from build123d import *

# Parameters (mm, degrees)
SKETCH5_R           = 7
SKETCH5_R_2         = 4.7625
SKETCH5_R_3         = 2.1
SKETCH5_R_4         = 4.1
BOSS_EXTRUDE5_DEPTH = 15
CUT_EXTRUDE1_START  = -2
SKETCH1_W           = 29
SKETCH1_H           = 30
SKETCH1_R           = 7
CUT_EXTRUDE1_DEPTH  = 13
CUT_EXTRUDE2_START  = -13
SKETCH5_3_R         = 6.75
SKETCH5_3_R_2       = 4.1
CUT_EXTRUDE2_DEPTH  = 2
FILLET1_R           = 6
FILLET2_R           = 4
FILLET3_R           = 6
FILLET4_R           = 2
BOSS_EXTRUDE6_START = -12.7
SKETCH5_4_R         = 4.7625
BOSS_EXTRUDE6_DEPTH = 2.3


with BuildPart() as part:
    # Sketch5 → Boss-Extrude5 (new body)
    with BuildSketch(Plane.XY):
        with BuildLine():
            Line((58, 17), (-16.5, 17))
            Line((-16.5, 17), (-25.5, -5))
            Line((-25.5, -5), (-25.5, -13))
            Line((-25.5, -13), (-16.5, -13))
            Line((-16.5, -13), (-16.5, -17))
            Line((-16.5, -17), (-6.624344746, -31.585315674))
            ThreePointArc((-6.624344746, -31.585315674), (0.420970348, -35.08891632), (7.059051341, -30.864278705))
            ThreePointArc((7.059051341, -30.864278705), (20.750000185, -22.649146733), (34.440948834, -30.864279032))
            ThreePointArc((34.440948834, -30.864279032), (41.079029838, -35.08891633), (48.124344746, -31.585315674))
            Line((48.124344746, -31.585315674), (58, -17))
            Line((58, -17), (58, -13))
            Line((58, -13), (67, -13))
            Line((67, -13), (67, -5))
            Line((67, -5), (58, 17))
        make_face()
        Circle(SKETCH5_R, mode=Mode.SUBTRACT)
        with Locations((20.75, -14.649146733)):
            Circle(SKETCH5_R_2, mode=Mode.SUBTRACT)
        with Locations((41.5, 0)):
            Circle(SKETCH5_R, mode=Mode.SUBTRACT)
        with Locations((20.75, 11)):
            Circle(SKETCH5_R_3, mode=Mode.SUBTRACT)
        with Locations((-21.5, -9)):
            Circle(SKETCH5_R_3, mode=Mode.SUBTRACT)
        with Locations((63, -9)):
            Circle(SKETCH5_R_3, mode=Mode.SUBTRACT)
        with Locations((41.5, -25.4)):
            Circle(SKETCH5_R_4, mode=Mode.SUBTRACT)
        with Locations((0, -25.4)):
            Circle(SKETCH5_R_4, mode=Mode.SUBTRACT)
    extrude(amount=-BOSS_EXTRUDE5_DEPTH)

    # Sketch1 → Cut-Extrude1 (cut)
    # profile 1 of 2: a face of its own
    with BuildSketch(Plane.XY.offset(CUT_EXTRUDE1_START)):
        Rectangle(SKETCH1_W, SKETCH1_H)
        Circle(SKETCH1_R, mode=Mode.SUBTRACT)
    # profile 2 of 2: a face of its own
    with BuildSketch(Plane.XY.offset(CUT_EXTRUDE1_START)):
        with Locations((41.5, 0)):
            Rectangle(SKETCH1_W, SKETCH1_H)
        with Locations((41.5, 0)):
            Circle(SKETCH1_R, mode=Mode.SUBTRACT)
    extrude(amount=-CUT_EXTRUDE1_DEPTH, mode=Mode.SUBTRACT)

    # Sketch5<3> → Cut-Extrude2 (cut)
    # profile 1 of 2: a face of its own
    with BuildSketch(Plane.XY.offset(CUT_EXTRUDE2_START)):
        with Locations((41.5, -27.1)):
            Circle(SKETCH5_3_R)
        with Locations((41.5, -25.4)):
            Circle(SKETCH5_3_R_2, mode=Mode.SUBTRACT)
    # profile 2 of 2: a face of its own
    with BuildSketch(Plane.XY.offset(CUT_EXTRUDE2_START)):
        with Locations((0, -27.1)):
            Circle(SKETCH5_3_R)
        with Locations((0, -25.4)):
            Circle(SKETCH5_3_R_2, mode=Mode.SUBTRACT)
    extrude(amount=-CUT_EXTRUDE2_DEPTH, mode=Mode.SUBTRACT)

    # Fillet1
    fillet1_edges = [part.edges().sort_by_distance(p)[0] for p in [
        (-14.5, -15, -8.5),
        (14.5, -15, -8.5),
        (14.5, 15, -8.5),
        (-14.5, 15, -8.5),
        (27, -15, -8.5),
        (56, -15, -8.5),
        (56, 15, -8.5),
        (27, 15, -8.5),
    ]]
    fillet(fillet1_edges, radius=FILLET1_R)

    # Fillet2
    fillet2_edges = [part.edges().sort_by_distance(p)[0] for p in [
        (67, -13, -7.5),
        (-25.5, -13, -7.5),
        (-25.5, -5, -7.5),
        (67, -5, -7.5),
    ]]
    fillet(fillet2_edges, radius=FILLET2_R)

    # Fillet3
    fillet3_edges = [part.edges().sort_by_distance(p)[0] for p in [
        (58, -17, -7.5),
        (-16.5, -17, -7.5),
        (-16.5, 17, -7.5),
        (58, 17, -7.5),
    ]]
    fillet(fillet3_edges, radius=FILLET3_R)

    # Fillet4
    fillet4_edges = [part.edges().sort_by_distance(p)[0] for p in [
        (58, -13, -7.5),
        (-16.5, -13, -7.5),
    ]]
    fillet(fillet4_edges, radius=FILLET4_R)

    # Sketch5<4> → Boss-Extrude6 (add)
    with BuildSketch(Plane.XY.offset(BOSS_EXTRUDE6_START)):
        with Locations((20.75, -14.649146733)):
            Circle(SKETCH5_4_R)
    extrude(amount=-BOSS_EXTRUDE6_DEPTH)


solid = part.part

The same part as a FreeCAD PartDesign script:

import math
import FreeCAD as App
import Part
import Sketcher
from FreeCAD import Vector


def edges_at(feature, points):
    """Names of the edges that pass closest to the given points."""
    edges = feature.Shape.Edges
    near = lambda p: min(range(len(edges)), key=lambda i: edges[i].distToShape(Part.Vertex(*p))[0])
    return sorted({f"Edge{near(p) + 1}" for p in points})

doc = App.newDocument("Part")
params = doc.addObject("Spreadsheet::Sheet", "Params")
for row, (alias, value) in enumerate([
    ("sketch1_diameter", "14 mm"),
    ("sketch1_radius", "8 mm"),
    ("sketch1_diameter2", "8.2 mm"),
    ("sketch1_diameter3", "4.2 mm"),
    ("sketch1_width", "9 mm"),
    ("pad1_length", "15 mm"),
    ("sketch2_diameter", "14 mm"),
    ("sketch2_width", "29 mm"),
    ("sketch2_height", "30 mm"),
    ("pocket1_length", "13 mm"),
    ("sketch3_diameter", "13.5 mm"),
    ("sketch3_diameter2", "8.2 mm"),
    ("pocket2_length", "2 mm"),
    ("fillet_radius", "6 mm"),
    ("fillet2_radius", "4 mm"),
    ("fillet3_radius", "6 mm"),
    ("fillet4_radius", "2 mm"),
    ("pad2_length", "2.3 mm"),
], start=1):
    params.set(f"A{row}", alias)
    params.set(f"B{row}", "=" + value)
    params.setAlias(f"B{row}", alias)

body = doc.addObject("PartDesign::Body", "Body")

# Sketch on XY plane
sketch1 = body.newObject("Sketcher::SketchObject", "Sketch")
sketch1.AttachmentSupport = (doc.getObject("XY_Plane"), [""])
sketch1.MapMode = "FlatFace"
sketch1.addGeometry([
    Part.LineSegment(Vector(58, 17, 0), Vector(-16.5, 17, 0)),  # 0
    Part.LineSegment(Vector(-16.5, 17, 0), Vector(-25.5, -5, 0)),  # 1
    Part.LineSegment(Vector(-25.5, -5, 0), Vector(-25.5, -13, 0)),  # 2
    Part.LineSegment(Vector(-25.5, -13, 0), Vector(-16.5, -13, 0)),  # 3
    Part.LineSegment(Vector(-16.5, -13, 0), Vector(-16.5, -17, 0)),  # 4
    Part.LineSegment(Vector(-16.5, -17, 0), Vector(-6.6, -31.6, 0)),  # 5
    Part.ArcOfCircle(Part.Circle(Vector(0, -27.1, 0), Vector(0, 0, 1), 8), math.radians(-146), math.radians(-28)),  # 6
    Part.ArcOfCircle(Part.Circle(Vector(20.8, -38.2, 0), Vector(0, 0, 1), 15.5), math.radians(28), math.radians(152)),  # 7
    Part.ArcOfCircle(Part.Circle(Vector(41.5, -27.1, 0), Vector(0, 0, 1), 8), math.radians(-152), math.radians(-34)),  # 8
    Part.LineSegment(Vector(48.1, -31.6, 0), Vector(58, -17, 0)),  # 9
    Part.LineSegment(Vector(58, -17, 0), Vector(58, -13, 0)),  # 10
    Part.LineSegment(Vector(58, -13, 0), Vector(67, -13, 0)),  # 11
    Part.LineSegment(Vector(67, -13, 0), Vector(67, -5, 0)),  # 12
    Part.LineSegment(Vector(67, -5, 0), Vector(58, 17, 0)),  # 13
    Part.Circle(Vector(0, -25.4, 0), Vector(0, 0, 1), 4.1),  # 14
    Part.Circle(Vector(-21.5, -9, 0), Vector(0, 0, 1), 2.1),  # 15
    Part.Circle(Vector(41.5, -25.4, 0), Vector(0, 0, 1), 4.1),  # 16
    Part.Circle(Vector(20.8, -14.6, 0), Vector(0, 0, 1), 4.8),  # 17
    Part.Circle(Vector(63, -9, 0), Vector(0, 0, 1), 2.1),  # 18
    Part.Circle(Vector(0, 0, 0), Vector(0, 0, 1), 7),  # 19
    Part.Circle(Vector(41.5, 0, 0), Vector(0, 0, 1), 7),  # 20
    Part.Circle(Vector(20.8, 11, 0), Vector(0, 0, 1), 2.1),  # 21
], False)
sketch1.addConstraint([
    Sketcher.Constraint("Coincident", 0, 2, 1, 1),
    Sketcher.Constraint("Coincident", 1, 2, 2, 1),
    Sketcher.Constraint("Coincident", 2, 2, 3, 1),
    Sketcher.Constraint("Coincident", 3, 2, 4, 1),
    Sketcher.Constraint("Coincident", 4, 2, 5, 1),
    Sketcher.Constraint("Tangent", 5, 2, 6, 1),
    Sketcher.Constraint("Tangent", 6, 2, 7, 2),
    Sketcher.Constraint("Tangent", 7, 1, 8, 1),
    Sketcher.Constraint("Tangent", 8, 2, 9, 1),
    Sketcher.Constraint("Coincident", 9, 2, 10, 1),
    Sketcher.Constraint("Coincident", 10, 2, 11, 1),
    Sketcher.Constraint("Coincident", 11, 2, 12, 1),
    Sketcher.Constraint("Coincident", 12, 2, 13, 1),
    Sketcher.Constraint("Coincident", 13, 2, 0, 1),
    Sketcher.Constraint("Horizontal", 0),
    Sketcher.Constraint("Vertical", 2),
    Sketcher.Constraint("Horizontal", 3),
    Sketcher.Constraint("Vertical", 4),
    Sketcher.Constraint("Vertical", 10),
    Sketcher.Constraint("Horizontal", 11),
    Sketcher.Constraint("Vertical", 12),
    Sketcher.Constraint("Coincident", 19, 3, -1, 1),
    Sketcher.Constraint("Equal", 6, 8),
    Sketcher.Constraint("Equal", 14, 16),
    Sketcher.Constraint("Equal", 15, 18),
    Sketcher.Constraint("Equal", 19, 20),
    Sketcher.Constraint("Equal", 18, 21),
    Sketcher.Constraint("Symmetric", 0, 2, 4, 2, -1),
    Sketcher.Constraint("Symmetric", 9, 2, 13, 2, -1),
    Sketcher.Constraint("PointOnObject", 6, 3, -2),
    Sketcher.Constraint("PointOnObject", 14, 3, -2),
    Sketcher.Constraint("PointOnObject", 20, 3, -1),
    Sketcher.Constraint("Horizontal", 6, 3, 8, 3),
    Sketcher.Constraint("Horizontal", 14, 3, 16, 3),
    Sketcher.Constraint("Horizontal", 15, 3, 18, 3),
    Sketcher.Constraint("Horizontal", 5, 2, 8, 2),
    Sketcher.Constraint("Horizontal", 3, 2, 10, 2),
    Sketcher.Constraint("Horizontal", 1, 2, 12, 2),
    Sketcher.Constraint("Vertical", 8, 3, 16, 3),
    Sketcher.Constraint("Vertical", 7, 3, 17, 3),
    Sketcher.Constraint("Vertical", 16, 3, 20, 3),
    Sketcher.Constraint("Vertical", 17, 3, 21, 3),
    Sketcher.Constraint("Equal", 3, 11),
    Sketcher.Constraint("Diameter", 19, 14.0),
    Sketcher.Constraint("Radius", 6, 8.0),
    Sketcher.Constraint("Diameter", 14, 8.2),
    Sketcher.Constraint("Diameter", 15, 4.2),
    Sketcher.Constraint("DistanceX", 3, 1, 3, 2, 9.0),
    Sketcher.Constraint("DistanceY", 2, 2, 2, 1, 8.0),
    Sketcher.Constraint("DistanceY", 4, 2, 4, 1, 4.0),
    Sketcher.Constraint("Diameter", 17, 9.525),
    Sketcher.Constraint("DistanceX", 0, 2, 0, 1, 74.5),
    Sketcher.Constraint("DistanceY", 15, 3, -1, 1, 9.0),
    Sketcher.Constraint("DistanceX", -1, 1, 18, 3, 63.0),
    Sketcher.Constraint("DistanceY", -1, 1, 21, 3, 11.0),
    Sketcher.Constraint("DistanceY", -1, 1, 0, 2, 17.0),
    Sketcher.Constraint("DistanceX", -1, 1, 9, 2, 58.0),
    Sketcher.Constraint("DistanceX", 15, 3, 8, 3, 63.0),
    Sketcher.Constraint("DistanceY", 6, 3, -1, 1, 27.1),
    Sketcher.Constraint("DistanceY", 14, 3, -1, 1, 25.4),
    Sketcher.Constraint("Radius", 7, 15.515908),
    Sketcher.Constraint("DistanceY", 7, 3, 17, 3, 23.515908),
])
sketch1.setExpression("Constraints[43]", "Params.sketch1_diameter")
sketch1.setExpression("Constraints[44]", "Params.sketch1_radius")
sketch1.setExpression("Constraints[45]", "Params.sketch1_diameter2")
sketch1.setExpression("Constraints[46]", "Params.sketch1_diameter3")
sketch1.setExpression("Constraints[47]", "Params.sketch1_width")
pad1 = body.newObject("PartDesign::Pad", "Pad")
pad1.Profile = sketch1
pad1.setExpression("Length", "Params.pad1_length")
pad1.Reversed = True

# Sketch on XY plane
sketch2 = body.newObject("Sketcher::SketchObject", "Sketch001")
sketch2.AttachmentSupport = (doc.getObject("XY_Plane"), [""])
sketch2.MapMode = "FlatFace"
sketch2.AttachmentOffset = App.Placement(Vector(0, 0, -2), App.Rotation())
sketch2.addGeometry([
    Part.LineSegment(Vector(-14, 15, 0), Vector(-14, -15, 0)),  # 0
    Part.LineSegment(Vector(-14, -15, 0), Vector(14, -15, 0)),  # 1
    Part.LineSegment(Vector(14, -15, 0), Vector(14, 15, 0)),  # 2
    Part.LineSegment(Vector(14, 15, 0), Vector(-14, 15, 0)),  # 3
    Part.Circle(Vector(0, 0, 0), Vector(0, 0, 1), 7),  # 4
    Part.LineSegment(Vector(27, 15, 0), Vector(27, -15, 0)),  # 5
    Part.LineSegment(Vector(27, -15, 0), Vector(56, -15, 0)),  # 6
    Part.LineSegment(Vector(56, -15, 0), Vector(56, 15, 0)),  # 7
    Part.LineSegment(Vector(56, 15, 0), Vector(27, 15, 0)),  # 8
    Part.Circle(Vector(42, 0, 0), Vector(0, 0, 1), 7),  # 9
], False)
sketch2.addConstraint([
    Sketcher.Constraint("Coincident", 0, 2, 1, 1),
    Sketcher.Constraint("Coincident", 1, 2, 2, 1),
    Sketcher.Constraint("Coincident", 2, 2, 3, 1),
    Sketcher.Constraint("Coincident", 3, 2, 0, 1),
    Sketcher.Constraint("Coincident", 5, 2, 6, 1),
    Sketcher.Constraint("Coincident", 6, 2, 7, 1),
    Sketcher.Constraint("Coincident", 7, 2, 8, 1),
    Sketcher.Constraint("Coincident", 8, 2, 5, 1),
    Sketcher.Constraint("Vertical", 0),
    Sketcher.Constraint("Horizontal", 1),
    Sketcher.Constraint("Vertical", 2),
    Sketcher.Constraint("Horizontal", 3),
    Sketcher.Constraint("Vertical", 5),
    Sketcher.Constraint("Horizontal", 6),
    Sketcher.Constraint("Vertical", 7),
    Sketcher.Constraint("Horizontal", 8),
    Sketcher.Constraint("Coincident", 4, 3, -1, 1),
    Sketcher.Constraint("Equal", 4, 9),
    Sketcher.Constraint("Symmetric", 0, 2, 2, 2, -1, 1),
    Sketcher.Constraint("PointOnObject", 9, 3, -1),
    Sketcher.Constraint("Horizontal", 1, 2, 5, 2),
    Sketcher.Constraint("Horizontal", 3, 2, 7, 2),
    Sketcher.Constraint("Equal", 3, 6),
    Sketcher.Constraint("Diameter", 4, 14.0),
    Sketcher.Constraint("DistanceX", 1, 1, 1, 2, 29.0),
    Sketcher.Constraint("DistanceY", 0, 2, 0, 1, 30.0),
    Sketcher.Constraint("DistanceX", -1, 1, 5, 2, 27.0),
    Sketcher.Constraint("DistanceX", 0, 2, 9, 3, 56.0),
])
sketch2.setExpression("Constraints[23]", "Params.sketch2_diameter")
sketch2.setExpression("Constraints[24]", "Params.sketch2_width")
sketch2.setExpression("Constraints[25]", "Params.sketch2_height")
pocket1 = body.newObject("PartDesign::Pocket", "Pocket")
pocket1.Profile = sketch2
pocket1.setExpression("Length", "Params.pocket1_length")

# Sketch on XY plane
sketch3 = body.newObject("Sketcher::SketchObject", "Sketch002")
sketch3.AttachmentSupport = (doc.getObject("XY_Plane"), [""])
sketch3.MapMode = "FlatFace"
sketch3.AttachmentOffset = App.Placement(Vector(0, 0, -13), App.Rotation())
sketch3.addGeometry([
    Part.Circle(Vector(41.5, -27.1, 0), Vector(0, 0, 1), 6.8),
    Part.Circle(Vector(41.5, -25.4, 0), Vector(0, 0, 1), 4.1),
    Part.Circle(Vector(0, -27.1, 0), Vector(0, 0, 1), 6.8),
    Part.Circle(Vector(0, -25.4, 0), Vector(0, 0, 1), 4.1),
], False)
sketch3.addConstraint([
    Sketcher.Constraint("Equal", 0, 2),
    Sketcher.Constraint("Equal", 1, 3),
    Sketcher.Constraint("PointOnObject", 2, 3, -2),
    Sketcher.Constraint("PointOnObject", 3, 3, -2),
    Sketcher.Constraint("Horizontal", 0, 3, 2, 3),
    Sketcher.Constraint("Horizontal", 1, 3, 3, 3),
    Sketcher.Constraint("Vertical", 0, 3, 1, 3),
    Sketcher.Constraint("Diameter", 0, 13.5),
    Sketcher.Constraint("Diameter", 1, 8.2),
    Sketcher.Constraint("DistanceX", -1, 1, 0, 3, 41.5),
    Sketcher.Constraint("DistanceY", 0, 3, -1, 1, 27.1),
    Sketcher.Constraint("DistanceY", 1, 3, -1, 1, 25.4),
])
sketch3.setExpression("Constraints[7]", "Params.sketch3_diameter")
sketch3.setExpression("Constraints[8]", "Params.sketch3_diameter2")
pocket2 = body.newObject("PartDesign::Pocket", "Pocket001")
pocket2.Profile = sketch3
pocket2.setExpression("Length", "Params.pocket2_length")
doc.recompute()

fillet = body.newObject("PartDesign::Fillet", "Fillet")
fillet.Base = (pocket2, edges_at(pocket2, [
    (-14.5, -15, -8.5),
    (14.5, -15, -8.5),
    (14.5, 15, -8.5),
    (-14.5, 15, -8.5),
    (27, -15, -8.5),
    (56, -15, -8.5),
    (56, 15, -8.5),
    (27, 15, -8.5),
]))
fillet.setExpression("Radius", "Params.fillet_radius")
doc.recompute()

fillet2 = body.newObject("PartDesign::Fillet", "Fillet001")
fillet2.Base = (fillet, edges_at(fillet, [
    (67, -13, -7.5),
    (-25.5, -13, -7.5),
    (-25.5, -5, -7.5),
    (67, -5, -7.5),
]))
fillet2.setExpression("Radius", "Params.fillet2_radius")
doc.recompute()

fillet3 = body.newObject("PartDesign::Fillet", "Fillet002")
fillet3.Base = (fillet2, edges_at(fillet2, [
    (58, -17, -7.5),
    (-16.5, -17, -7.5),
    (-16.5, 17, -7.5),
    (58, 17, -7.5),
]))
fillet3.setExpression("Radius", "Params.fillet3_radius")
doc.recompute()

fillet4 = body.newObject("PartDesign::Fillet", "Fillet003")
fillet4.Base = (fillet3, edges_at(fillet3, [(58, -13, -7.5), (-16.5, -13, -7.5)]))
fillet4.setExpression("Radius", "Params.fillet4_radius")

# Sketch on XY plane
sketch4 = body.newObject("Sketcher::SketchObject", "Sketch003")
sketch4.AttachmentSupport = (doc.getObject("XY_Plane"), [""])
sketch4.MapMode = "FlatFace"
sketch4.AttachmentOffset = App.Placement(Vector(0, 0, -12.7), App.Rotation())
sketch4.addGeometry(Part.Circle(Vector(20.8, -14.6, 0), Vector(0, 0, 1), 4.8), False)
sketch4.addConstraint([
    Sketcher.Constraint("Diameter", 0, 9.525),
    Sketcher.Constraint("DistanceX", -1, 1, 0, 3, 20.75),
    Sketcher.Constraint("DistanceY", 0, 3, -1, 1, 14.649147),
])
pad2 = body.newObject("PartDesign::Pad", "Pad001")
pad2.Profile = sketch4
pad2.setExpression("Length", "Params.pad2_length")
pad2.Reversed = True

doc.recompute()
